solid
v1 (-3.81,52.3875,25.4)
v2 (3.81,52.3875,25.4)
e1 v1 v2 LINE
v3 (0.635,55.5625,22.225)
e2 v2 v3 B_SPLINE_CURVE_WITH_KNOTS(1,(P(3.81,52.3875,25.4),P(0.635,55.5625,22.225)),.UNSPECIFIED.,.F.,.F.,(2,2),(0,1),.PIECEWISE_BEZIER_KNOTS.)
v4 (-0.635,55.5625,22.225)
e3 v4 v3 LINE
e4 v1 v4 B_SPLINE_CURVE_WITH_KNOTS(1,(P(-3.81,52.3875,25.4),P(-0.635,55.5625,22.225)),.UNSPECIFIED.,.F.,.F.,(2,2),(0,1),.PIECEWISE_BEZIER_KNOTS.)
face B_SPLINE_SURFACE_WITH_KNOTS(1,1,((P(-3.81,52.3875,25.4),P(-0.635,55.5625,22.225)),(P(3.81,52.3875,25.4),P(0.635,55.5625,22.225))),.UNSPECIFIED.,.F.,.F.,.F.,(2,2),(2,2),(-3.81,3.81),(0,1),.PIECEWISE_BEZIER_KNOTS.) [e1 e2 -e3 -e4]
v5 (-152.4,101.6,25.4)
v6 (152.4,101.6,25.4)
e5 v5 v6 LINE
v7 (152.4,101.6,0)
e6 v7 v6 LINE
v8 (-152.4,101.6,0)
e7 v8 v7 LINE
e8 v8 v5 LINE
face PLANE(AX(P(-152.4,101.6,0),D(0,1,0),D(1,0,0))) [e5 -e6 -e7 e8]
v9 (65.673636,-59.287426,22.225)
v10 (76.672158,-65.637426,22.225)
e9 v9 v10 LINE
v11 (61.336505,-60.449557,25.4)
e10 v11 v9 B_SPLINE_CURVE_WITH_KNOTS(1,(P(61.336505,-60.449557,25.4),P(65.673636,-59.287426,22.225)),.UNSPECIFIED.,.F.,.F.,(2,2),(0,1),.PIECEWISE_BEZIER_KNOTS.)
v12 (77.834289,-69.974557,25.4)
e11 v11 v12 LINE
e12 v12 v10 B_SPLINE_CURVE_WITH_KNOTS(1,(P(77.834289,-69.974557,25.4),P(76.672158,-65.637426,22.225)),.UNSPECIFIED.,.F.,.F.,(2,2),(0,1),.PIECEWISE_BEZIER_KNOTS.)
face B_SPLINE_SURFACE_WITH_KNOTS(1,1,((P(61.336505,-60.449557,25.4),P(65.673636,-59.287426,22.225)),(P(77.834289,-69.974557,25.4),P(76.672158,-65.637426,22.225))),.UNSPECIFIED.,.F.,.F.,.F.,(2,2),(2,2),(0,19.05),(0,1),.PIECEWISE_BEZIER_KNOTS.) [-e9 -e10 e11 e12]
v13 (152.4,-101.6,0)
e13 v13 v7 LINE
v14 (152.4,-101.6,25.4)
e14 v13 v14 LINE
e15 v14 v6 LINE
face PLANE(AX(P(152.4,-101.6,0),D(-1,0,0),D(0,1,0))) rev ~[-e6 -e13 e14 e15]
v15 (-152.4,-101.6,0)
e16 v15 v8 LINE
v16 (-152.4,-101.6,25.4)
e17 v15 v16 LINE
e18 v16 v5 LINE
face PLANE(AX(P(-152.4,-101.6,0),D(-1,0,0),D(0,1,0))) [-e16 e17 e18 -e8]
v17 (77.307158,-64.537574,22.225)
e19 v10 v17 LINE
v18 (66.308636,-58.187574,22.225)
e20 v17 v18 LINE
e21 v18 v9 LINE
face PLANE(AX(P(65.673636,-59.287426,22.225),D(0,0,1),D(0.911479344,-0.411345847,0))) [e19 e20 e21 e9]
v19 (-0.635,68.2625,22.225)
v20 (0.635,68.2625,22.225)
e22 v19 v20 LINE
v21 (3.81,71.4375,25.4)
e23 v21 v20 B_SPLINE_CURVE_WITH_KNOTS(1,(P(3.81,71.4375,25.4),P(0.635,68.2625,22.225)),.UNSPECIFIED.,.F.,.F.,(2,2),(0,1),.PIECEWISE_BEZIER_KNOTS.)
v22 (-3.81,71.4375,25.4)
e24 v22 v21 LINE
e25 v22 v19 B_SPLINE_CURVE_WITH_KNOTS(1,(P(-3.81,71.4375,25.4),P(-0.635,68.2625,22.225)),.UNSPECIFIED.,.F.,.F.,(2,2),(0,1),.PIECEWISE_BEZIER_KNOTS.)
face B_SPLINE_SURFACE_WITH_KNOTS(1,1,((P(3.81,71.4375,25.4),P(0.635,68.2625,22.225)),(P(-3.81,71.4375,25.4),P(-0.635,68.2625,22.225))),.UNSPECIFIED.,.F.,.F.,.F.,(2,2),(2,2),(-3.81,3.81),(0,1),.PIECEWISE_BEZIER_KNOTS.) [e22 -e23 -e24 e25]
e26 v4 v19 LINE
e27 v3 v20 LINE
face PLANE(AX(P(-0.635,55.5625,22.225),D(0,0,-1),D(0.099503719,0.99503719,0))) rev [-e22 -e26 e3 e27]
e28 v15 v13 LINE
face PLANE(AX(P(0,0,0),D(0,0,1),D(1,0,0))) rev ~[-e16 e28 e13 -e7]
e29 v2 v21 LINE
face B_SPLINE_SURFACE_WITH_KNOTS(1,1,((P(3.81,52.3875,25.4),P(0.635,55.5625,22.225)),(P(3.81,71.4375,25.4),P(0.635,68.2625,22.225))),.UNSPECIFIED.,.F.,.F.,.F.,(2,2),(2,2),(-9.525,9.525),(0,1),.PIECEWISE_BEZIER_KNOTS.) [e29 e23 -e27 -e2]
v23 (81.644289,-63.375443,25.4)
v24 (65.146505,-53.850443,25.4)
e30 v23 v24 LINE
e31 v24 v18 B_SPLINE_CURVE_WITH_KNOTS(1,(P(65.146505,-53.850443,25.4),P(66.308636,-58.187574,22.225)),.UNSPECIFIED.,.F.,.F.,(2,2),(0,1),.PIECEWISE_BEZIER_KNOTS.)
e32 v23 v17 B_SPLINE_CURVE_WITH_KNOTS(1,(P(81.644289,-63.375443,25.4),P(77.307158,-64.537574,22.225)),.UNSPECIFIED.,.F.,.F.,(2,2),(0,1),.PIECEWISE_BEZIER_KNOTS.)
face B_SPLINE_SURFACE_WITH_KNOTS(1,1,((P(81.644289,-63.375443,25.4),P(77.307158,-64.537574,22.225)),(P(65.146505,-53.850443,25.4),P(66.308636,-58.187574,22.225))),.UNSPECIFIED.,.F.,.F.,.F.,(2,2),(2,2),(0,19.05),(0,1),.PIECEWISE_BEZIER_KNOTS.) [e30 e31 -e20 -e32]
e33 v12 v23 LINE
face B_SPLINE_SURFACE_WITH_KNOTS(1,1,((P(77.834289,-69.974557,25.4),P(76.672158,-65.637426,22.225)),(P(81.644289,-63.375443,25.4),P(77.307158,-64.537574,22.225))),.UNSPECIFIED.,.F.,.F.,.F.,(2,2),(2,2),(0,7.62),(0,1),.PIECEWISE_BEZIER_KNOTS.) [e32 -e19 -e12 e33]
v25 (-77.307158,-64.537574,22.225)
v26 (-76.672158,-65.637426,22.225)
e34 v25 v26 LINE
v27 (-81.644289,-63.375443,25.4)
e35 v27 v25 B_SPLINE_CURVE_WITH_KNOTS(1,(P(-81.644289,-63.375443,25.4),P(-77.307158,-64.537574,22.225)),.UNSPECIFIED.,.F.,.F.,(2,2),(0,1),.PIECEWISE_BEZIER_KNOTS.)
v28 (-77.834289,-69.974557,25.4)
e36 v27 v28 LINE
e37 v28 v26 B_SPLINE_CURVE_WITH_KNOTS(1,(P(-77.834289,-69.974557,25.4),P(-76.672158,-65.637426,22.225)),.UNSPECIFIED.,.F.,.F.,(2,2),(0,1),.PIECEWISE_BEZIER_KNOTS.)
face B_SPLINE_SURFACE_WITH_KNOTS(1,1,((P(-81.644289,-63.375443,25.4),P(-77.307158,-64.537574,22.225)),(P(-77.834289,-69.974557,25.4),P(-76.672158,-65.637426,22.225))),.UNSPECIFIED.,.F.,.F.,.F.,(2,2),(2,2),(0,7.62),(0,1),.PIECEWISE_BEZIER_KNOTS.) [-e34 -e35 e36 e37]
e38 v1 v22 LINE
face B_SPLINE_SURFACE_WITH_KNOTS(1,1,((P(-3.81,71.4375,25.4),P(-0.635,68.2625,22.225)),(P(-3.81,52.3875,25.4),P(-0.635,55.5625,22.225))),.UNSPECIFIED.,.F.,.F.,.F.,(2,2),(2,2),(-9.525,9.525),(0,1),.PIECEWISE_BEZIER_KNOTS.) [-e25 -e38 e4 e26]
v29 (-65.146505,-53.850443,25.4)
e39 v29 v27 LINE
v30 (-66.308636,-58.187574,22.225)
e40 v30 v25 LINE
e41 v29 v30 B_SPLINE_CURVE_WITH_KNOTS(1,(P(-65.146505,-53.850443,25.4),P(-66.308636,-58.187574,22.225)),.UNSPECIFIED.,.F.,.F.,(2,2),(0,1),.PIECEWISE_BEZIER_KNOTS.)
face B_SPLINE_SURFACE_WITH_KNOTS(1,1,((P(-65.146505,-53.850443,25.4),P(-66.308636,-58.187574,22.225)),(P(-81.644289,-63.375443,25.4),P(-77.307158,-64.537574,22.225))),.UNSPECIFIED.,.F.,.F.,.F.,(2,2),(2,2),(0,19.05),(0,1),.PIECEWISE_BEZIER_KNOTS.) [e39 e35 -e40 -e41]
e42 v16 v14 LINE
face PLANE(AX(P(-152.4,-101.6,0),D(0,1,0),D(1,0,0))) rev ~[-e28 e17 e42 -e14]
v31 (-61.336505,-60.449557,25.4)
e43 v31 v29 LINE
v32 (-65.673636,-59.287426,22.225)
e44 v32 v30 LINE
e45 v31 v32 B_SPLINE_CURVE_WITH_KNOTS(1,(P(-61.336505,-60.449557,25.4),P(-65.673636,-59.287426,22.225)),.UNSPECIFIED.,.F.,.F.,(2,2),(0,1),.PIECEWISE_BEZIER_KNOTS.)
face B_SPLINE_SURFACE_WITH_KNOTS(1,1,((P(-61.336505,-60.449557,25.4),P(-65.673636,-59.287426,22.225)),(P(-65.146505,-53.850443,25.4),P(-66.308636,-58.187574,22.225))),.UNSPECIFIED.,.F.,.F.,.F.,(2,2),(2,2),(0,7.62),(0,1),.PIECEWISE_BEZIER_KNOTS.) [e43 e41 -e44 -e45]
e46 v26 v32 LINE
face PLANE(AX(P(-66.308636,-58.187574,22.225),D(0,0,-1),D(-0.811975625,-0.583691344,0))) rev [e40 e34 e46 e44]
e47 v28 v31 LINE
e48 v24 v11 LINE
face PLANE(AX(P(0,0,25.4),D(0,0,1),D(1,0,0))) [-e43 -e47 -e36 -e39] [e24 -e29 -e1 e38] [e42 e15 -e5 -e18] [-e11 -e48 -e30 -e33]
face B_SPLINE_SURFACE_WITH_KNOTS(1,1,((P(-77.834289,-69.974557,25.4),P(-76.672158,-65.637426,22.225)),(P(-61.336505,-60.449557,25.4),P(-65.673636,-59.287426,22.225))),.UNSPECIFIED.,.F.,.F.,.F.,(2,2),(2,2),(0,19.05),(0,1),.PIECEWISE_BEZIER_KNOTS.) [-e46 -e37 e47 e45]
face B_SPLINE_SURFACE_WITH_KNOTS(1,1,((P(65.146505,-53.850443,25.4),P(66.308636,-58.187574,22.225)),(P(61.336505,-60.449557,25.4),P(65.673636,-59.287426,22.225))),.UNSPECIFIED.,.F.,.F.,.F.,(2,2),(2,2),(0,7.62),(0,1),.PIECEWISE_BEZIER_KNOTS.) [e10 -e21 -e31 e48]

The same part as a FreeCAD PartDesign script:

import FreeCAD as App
import Part
import Sketcher

V = App.Vector
Q = App.Units.Quantity

doc = App.newDocument("Part")
params = doc.addObject("Spreadsheet::Sheet", "Params")
for row, (alias, value) in enumerate([
    ("sketch1_width", "12 in"),
    ("sketch1_height", "8 in"),
    ("pad1_length", "1 in"),
    ("sketch2_width", "0.3 in"),
    ("sketch2_length", "0.3 in"),
    ("sketch2_height", "0.75 in"),
    ("sketch2_length2", "0.75 in"),
    ("pocket1_length", "0.125 in"),
    ("pocket1_taper", "-45 deg"),
], start=1):
    params.set(f"A{row}", alias)
    params.set(f"B{row}", "=" + value)
    params.setAlias(f"B{row}", alias)

body = doc.addObject("PartDesign::Body", "Body")

# Sketch on XY plane
sketch1 = body.newObject("Sketcher::SketchObject", "Sketch")
sketch1.AttachmentSupport = (doc.getObject("XY_Plane"), [""])
sketch1.MapMode = "FlatFace"
sketch1.addGeometry([
    Part.LineSegment(V(-152, 102, 0), V(-152, -102, 0)),
    Part.LineSegment(V(-152, -102, 0), V(152, -102, 0)),
    Part.LineSegment(V(152, -102, 0), V(152, 102, 0)),
    Part.LineSegment(V(152, 102, 0), V(-152, 102, 0)),
], False)
sketch1.addConstraint([
    Sketcher.Constraint("Coincident", 0, 2, 1, 1),
    Sketcher.Constraint("Coincident", 1, 2, 2, 1),
    Sketcher.Constraint("Coincident", 2, 2, 3, 1),
    Sketcher.Constraint("Coincident", 3, 2, 0, 1),
    Sketcher.Constraint("Vertical", 0),
    Sketcher.Constraint("Horizontal", 1),
    Sketcher.Constraint("Vertical", 2),
    Sketcher.Constraint("Horizontal", 3),
    Sketcher.Constraint("Symmetric", 0, 2, 2, 2, -1, 1),
    Sketcher.Constraint("DistanceX", 1, 1, 1, 2, Q("12 in")),
    Sketcher.Constraint("DistanceY", 0, 2, 0, 1, Q("8 in")),
])
sketch1.setExpression("Constraints[9]", "Params.sketch1_width")
sketch1.setExpression("Constraints[10]", "Params.sketch1_height")
pad1 = body.newObject("PartDesign::Pad", "Pad")
pad1.Profile = sketch1
pad1.setExpression("Length", "Params.pad1_length")

# Sketch on XY plane
sketch2 = body.newObject("Sketcher::SketchObject", "Sketch001")
sketch2.AttachmentSupport = (doc.getObject("XY_Plane"), [""])
sketch2.MapMode = "FlatFace"
sketch2.AttachmentOffset = App.Placement(V(0, 0, 1 * 25.4), App.Rotation())
sketch2.addGeometry([
    Part.LineSegment(V(-65, -54, 0), V(-82, -63, 0)),  # 0
    Part.LineSegment(V(-82, -63, 0), V(-78, -70, 0)),  # 1
    Part.LineSegment(V(-78, -70, 0), V(-61, -60, 0)),  # 2
    Part.LineSegment(V(-61, -60, 0), V(-65, -54, 0)),  # 3
    Part.LineSegment(V(61, -60, 0), V(78, -70, 0)),  # 4
    Part.LineSegment(V(78, -70, 0), V(82, -63, 0)),  # 5
    Part.LineSegment(V(82, -63, 0), V(65, -54, 0)),  # 6
    Part.LineSegment(V(65, -54, 0), V(61, -60, 0)),  # 7
    Part.LineSegment(V(-4, 71, 0), V(-4, 52, 0)),  # 8
    Part.LineSegment(V(-4, 52, 0), V(4, 52, 0)),  # 9
    Part.LineSegment(V(4, 52, 0), V(4, 71, 0)),  # 10
    Part.LineSegment(V(4, 71, 0), V(-4, 71, 0)),  # 11
], False)
sketch2.addConstraint([
    Sketcher.Constraint("Coincident", 0, 2, 1, 1),
    Sketcher.Constraint("Coincident", 1, 2, 2, 1),
    Sketcher.Constraint("Coincident", 2, 2, 3, 1),
    Sketcher.Constraint("Coincident", 3, 2, 0, 1),
    Sketcher.Constraint("Coincident", 4, 2, 5, 1),
    Sketcher.Constraint("Coincident", 5, 2, 6, 1),
    Sketcher.Constraint("Coincident", 6, 2, 7, 1),
    Sketcher.Constraint("Coincident", 7, 2, 4, 1),
    Sketcher.Constraint("Coincident", 8, 2, 9, 1),
    Sketcher.Constraint("Coincident", 9, 2, 10, 1),
    Sketcher.Constraint("Coincident", 10, 2, 11, 1),
    Sketcher.Constraint("Coincident", 11, 2, 8, 1),
    Sketcher.Constraint("Vertical", 8),
    Sketcher.Constraint("Horizontal", 9),
    Sketcher.Constraint("Vertical", 10),
    Sketcher.Constraint("Horizontal", 11),
    Sketcher.Constraint("Symmetric", 1, 2, 4, 2, -2),
    Sketcher.Constraint("Symmetric", 0, 2, 5, 2, -2),
    Sketcher.Constraint("Symmetric", 3, 2, 6, 2, -2),
    Sketcher.Constraint("Symmetric", 2, 2, 7, 2, -2),
    Sketcher.Constraint("Perpendicular", 0, 1),
    Sketcher.Constraint("Perpendicular", 1, 2),
    Sketcher.Constraint("Perpendicular", 2, 3),
    Sketcher.Constraint("DistanceX", 9, 1, 9, 2, Q("0.3 in")),
    Sketcher.Constraint("Angle", 0, Q("-150 deg")),
    Sketcher.Constraint("Distance", 1, Q("0.3 in")),
    Sketcher.Constraint("DistanceY", 8, 2, 8, 1, Q("0.75 in")),
    Sketcher.Constraint("Distance", 0, Q("0.75 in")),
    Sketcher.Constraint("DistanceX", 8, 2, -1, 1, Q("0.15 in")),
    Sketcher.Constraint("DistanceY", -1, 1, 8, 2, Q("2.0625 in")),
    Sketcher.Constraint("DistanceX", 0, 2, -1, 1, Q("81.644289 mm")),
    Sketcher.Constraint("DistanceY", 0, 2, -1, 1, Q("63.375443 mm")),
])
sketch2.setExpression("Constraints[23]", "Params.sketch2_width")
sketch2.setExpression("Constraints[25]", "Params.sketch2_length")
sketch2.setExpression("Constraints[26]", "Params.sketch2_height")
sketch2.setExpression("Constraints[27]", "Params.sketch2_length2")
pocket1 = body.newObject("PartDesign::Pocket", "Pocket")
pocket1.Profile = sketch2
pocket1.setExpression("Length", "Params.pocket1_length")
pocket1.setExpression("TaperAngle", "Params.pocket1_taper")

doc.recompute()
